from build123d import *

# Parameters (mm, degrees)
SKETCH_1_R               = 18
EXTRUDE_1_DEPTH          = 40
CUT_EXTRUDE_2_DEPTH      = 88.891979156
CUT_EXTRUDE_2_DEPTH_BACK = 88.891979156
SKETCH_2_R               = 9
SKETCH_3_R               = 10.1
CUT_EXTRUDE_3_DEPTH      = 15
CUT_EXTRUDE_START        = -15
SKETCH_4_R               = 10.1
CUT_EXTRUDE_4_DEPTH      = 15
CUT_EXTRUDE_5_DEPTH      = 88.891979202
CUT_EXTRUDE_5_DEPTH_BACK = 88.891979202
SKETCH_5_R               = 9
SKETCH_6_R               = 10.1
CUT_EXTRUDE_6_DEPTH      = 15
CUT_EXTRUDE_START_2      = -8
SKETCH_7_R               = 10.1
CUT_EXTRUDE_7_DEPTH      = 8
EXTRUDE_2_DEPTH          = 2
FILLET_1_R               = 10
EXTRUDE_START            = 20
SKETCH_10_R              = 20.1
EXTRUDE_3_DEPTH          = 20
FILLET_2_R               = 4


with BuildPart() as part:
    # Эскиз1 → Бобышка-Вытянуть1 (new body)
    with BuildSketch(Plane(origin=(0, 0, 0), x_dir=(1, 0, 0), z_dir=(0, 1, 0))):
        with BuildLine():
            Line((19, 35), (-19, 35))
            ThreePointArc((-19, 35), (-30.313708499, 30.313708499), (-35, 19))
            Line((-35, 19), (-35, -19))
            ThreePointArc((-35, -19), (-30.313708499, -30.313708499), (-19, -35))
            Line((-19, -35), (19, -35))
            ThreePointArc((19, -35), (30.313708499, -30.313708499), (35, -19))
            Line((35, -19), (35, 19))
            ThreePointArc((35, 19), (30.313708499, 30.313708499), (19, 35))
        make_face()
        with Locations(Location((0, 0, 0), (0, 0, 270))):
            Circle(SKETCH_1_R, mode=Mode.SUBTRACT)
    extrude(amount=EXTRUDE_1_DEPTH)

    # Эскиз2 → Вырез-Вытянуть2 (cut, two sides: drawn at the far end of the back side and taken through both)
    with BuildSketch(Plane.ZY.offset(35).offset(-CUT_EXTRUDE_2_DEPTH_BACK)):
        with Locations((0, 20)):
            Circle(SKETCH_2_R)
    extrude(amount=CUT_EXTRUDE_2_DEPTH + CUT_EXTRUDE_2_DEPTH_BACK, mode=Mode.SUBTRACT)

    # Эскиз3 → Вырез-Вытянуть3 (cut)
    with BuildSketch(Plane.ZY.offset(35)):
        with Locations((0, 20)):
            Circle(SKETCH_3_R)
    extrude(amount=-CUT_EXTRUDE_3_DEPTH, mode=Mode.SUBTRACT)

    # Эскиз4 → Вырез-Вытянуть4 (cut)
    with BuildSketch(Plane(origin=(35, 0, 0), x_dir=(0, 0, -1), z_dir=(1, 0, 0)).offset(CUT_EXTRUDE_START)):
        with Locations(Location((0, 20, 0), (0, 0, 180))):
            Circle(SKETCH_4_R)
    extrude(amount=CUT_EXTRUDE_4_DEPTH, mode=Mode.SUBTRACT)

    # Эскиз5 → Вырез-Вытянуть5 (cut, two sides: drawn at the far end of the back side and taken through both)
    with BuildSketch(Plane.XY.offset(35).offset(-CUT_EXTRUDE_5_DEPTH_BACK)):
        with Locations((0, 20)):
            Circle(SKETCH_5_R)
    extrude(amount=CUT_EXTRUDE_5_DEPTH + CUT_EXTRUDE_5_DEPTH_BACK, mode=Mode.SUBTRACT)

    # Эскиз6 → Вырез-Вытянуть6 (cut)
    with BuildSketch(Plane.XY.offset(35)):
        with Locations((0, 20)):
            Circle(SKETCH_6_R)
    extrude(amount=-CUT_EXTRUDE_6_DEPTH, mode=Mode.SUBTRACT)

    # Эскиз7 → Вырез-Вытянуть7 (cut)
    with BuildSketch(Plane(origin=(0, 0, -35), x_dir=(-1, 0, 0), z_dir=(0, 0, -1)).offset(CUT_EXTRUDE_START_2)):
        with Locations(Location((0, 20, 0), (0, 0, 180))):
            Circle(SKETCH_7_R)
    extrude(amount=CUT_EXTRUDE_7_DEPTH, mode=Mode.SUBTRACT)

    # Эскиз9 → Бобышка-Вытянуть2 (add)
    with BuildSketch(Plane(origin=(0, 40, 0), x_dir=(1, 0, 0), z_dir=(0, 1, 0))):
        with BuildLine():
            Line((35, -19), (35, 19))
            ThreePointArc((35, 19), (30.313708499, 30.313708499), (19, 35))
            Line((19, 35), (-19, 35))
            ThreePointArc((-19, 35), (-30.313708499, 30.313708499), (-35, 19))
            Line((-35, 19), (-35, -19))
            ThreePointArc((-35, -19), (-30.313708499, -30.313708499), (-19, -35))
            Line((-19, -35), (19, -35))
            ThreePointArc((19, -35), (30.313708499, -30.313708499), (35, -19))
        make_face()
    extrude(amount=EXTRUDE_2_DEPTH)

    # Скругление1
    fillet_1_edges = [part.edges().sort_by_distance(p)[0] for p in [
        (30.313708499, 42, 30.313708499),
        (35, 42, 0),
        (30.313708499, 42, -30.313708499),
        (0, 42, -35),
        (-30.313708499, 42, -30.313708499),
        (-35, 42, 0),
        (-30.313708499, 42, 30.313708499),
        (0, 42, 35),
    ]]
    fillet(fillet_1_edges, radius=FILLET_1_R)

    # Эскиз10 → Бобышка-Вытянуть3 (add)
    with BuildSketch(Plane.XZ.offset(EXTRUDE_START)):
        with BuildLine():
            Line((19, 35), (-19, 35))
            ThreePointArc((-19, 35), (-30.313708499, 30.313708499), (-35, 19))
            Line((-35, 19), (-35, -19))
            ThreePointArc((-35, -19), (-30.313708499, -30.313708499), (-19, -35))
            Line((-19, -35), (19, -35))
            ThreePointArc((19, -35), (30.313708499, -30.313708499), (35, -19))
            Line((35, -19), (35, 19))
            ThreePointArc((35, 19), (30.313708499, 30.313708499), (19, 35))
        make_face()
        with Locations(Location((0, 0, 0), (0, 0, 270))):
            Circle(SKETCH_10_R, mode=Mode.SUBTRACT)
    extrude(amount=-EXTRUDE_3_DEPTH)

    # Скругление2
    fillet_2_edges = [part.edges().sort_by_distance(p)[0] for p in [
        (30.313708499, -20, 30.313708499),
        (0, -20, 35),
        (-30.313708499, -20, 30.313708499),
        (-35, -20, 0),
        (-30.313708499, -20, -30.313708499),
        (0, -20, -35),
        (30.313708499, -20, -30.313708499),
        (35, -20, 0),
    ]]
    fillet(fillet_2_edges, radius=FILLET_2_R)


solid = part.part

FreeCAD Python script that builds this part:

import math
import FreeCAD as App
import Part
import Sketcher
from FreeCAD import Vector
Q = App.Units.Quantity


def edges_at(feature, points):
    """Names of the edges that pass closest to the given points."""
    edges = feature.Shape.Edges
    near = lambda p: min(range(len(edges)), key=lambda i: edges[i].distToShape(Part.Vertex(*p))[0])
    return sorted({f"Edge{near(p) + 1}" for p in points})

doc = App.newDocument("Part")
params = doc.addObject("Spreadsheet::Sheet", "Params")
for row, (alias, value) in enumerate([
    ("sketch1_diameter", "36 mm"),
    ("sketch1_radius", "16 mm"),
    ("sketch1_width", "38 mm"),
    ("pad1_length", "40 mm"),
    ("sketch2_diameter", "18 mm"),
    ("sketch3_diameter", "20.2 mm"),
    ("pocket2_length", "15 mm"),
    ("sketch4_diameter", "20.2 mm"),
    ("pocket3_length", "15 mm"),
    ("sketch5_diameter", "18 mm"),
    ("sketch6_diameter", "20.2 mm"),
    ("pocket5_length", "15 mm"),
    ("sketch7_diameter", "20.2 mm"),
    ("pocket6_length", "8 mm"),
    ("sketch8_radius", "16 mm"),
    ("sketch8_width", "38 mm"),
    ("pad2_length", "2 mm"),
    ("fillet_radius", "10 mm"),
    ("sketch9_radius", "16 mm"),
    ("sketch9_diameter", "40.2 mm"),
    ("sketch9_width", "38 mm"),
    ("pad3_length", "20 mm"),
    ("fillet2_radius", "4 mm"),
], start=1):
    params.set(f"A{row}", alias)
    params.set(f"B{row}", "=" + value)
    params.setAlias(f"B{row}", alias)

body = doc.addObject("PartDesign::Body", "Body")

sketch1 = doc.addObject("Sketcher::SketchObject", "Sketch")
body.addObject(sketch1)
sketch1.AttachmentSupport = (doc.XZ_Plane, [""])
sketch1.MapMode = "FlatFace"
sketch1.addGeometry([
    Part.LineSegment(Vector(19, -35, 0), Vector(-19, -35, 0)),
    Part.ArcOfCircle(Part.Circle(Vector(-19, -19, 0), Vector(0, 0, 1), 16), math.radians(180), math.radians(270)),
    Part.LineSegment(Vector(-35, -19, 0), Vector(-35, 19, 0)),
    Part.ArcOfCircle(Part.Circle(Vector(-19, 19, 0), Vector(0, 0, 1), 16), math.radians(90), math.radians(180)),
    Part.LineSegment(Vector(-19, 35, 0), Vector(19, 35, 0)),
    Part.ArcOfCircle(Part.Circle(Vector(19, 19, 0), Vector(0, 0, 1), 16), math.radians(0), math.radians(90)),
    Part.LineSegment(Vector(35, 19, 0), Vector(35, -19, 0)),
    Part.ArcOfCircle(Part.Circle(Vector(19, -19, 0), Vector(0, 0, 1), 16), math.radians(-90), math.radians(0)),
    Part.Circle(Vector(0, 0, 0), Vector(0, 0, 1), 18),
], False)
sketch1.addConstraint([
    Sketcher.Constraint("Tangent", 0, 2, 1, 2),
    Sketcher.Constraint("Tangent", 1, 1, 2, 1),
    Sketcher.Constraint("Tangent", 2, 2, 3, 2),
    Sketcher.Constraint("Tangent", 3, 1, 4, 1),
    Sketcher.Constraint("Tangent", 4, 2, 5, 2),
    Sketcher.Constraint("Tangent", 5, 1, 6, 1),
    Sketcher.Constraint("Tangent", 6, 2, 7, 2),
    Sketcher.Constraint("Tangent", 7, 1, 0, 1),
    Sketcher.Constraint("Horizontal", 0),
    Sketcher.Constraint("Vertical", 2),
    Sketcher.Constraint("Horizontal", 4),
    Sketcher.Constraint("Vertical", 6),
    Sketcher.Constraint("Coincident", 8, 3, -1, 1),
    Sketcher.Constraint("Equal", 1, 3),
    Sketcher.Constraint("Equal", 3, 5),
    Sketcher.Constraint("Equal", 5, 7),
    Sketcher.Constraint("Symmetric", 1, 3, 5, 3, -1, 1),
    Sketcher.Constraint("Equal", 4, 2),
    Sketcher.Constraint("Diameter", 8, Q("36 mm")),
    Sketcher.Constraint("Radius", 1, Q("16 mm")),
    Sketcher.Constraint("DistanceX", 0, 2, 0, 1, Q("38 mm")),
])
sketch1.setExpression("Constraints[18]", "Params.sketch1_diameter")
sketch1.setExpression("Constraints[19]", "Params.sketch1_radius")
sketch1.setExpression("Constraints[20]", "Params.sketch1_width")
pad1 = doc.addObject("PartDesign::Pad", "Pad")
body.addObject(pad1)
pad1.Profile = sketch1
pad1.setExpression("Length", "Params.pad1_length")
pad1.Reversed = True

sketch2 = doc.addObject("Sketcher::SketchObject", "Sketch001")
body.addObject(sketch2)
sketch2.AttachmentSupport = (doc.YZ_Plane, [""])
sketch2.MapMode = "FlatFace"
sketch2.AttachmentOffset = App.Placement(Vector(0, 0, -35), App.Rotation())
sketch2.addGeometry(Part.Circle(Vector(20, 0, 0), Vector(0, 0, 1), 9), False)
sketch2.addConstraint([
    Sketcher.Constraint("PointOnObject", 0, 3, -1),
    Sketcher.Constraint("Diameter", 0, Q("18 mm")),
    Sketcher.Constraint("DistanceX", -1, 1, 0, 3, Q("20 mm")),
])
sketch2.setExpression("Constraints[1]", "Params.sketch2_diameter")
pocket1 = doc.addObject("PartDesign::Pocket", "Pocket")
body.addObject(pocket1)
pocket1.Profile = sketch2
pocket1.Type = "ThroughAll"
pocket1.Midplane = True

sketch3 = doc.addObject("Sketcher::SketchObject", "Sketch002")
body.addObject(sketch3)
sketch3.AttachmentSupport = (doc.YZ_Plane, [""])
sketch3.MapMode = "FlatFace"
sketch3.AttachmentOffset = App.Placement(Vector(0, 0, -35), App.Rotation())
sketch3.addGeometry(Part.Circle(Vector(20, 0, 0), Vector(0, 0, 1), 10), False)
sketch3.addConstraint([
    Sketcher.Constraint("PointOnObject", 0, 3, -1),
    Sketcher.Constraint("Diameter", 0, Q("20.2 mm")),
    Sketcher.Constraint("DistanceX", -1, 1, 0, 3, Q("20 mm")),
])
sketch3.setExpression("Constraints[1]", "Params.sketch3_diameter")
pocket2 = doc.addObject("PartDesign::Pocket", "Pocket001")
body.addObject(pocket2)
pocket2.Profile = sketch3
pocket2.setExpression("Length", "Params.pocket2_length")
pocket2.Reversed = True

sketch4 = doc.addObject("Sketcher::SketchObject", "Sketch003")
body.addObject(sketch4)
sketch4.AttachmentSupport = (doc.YZ_Plane, [""])
sketch4.MapMode = "FlatFace"
sketch4.AttachmentOffset = App.Placement(Vector(0, 0, 20), App.Rotation())
sketch4.addGeometry(Part.Circle(Vector(20, 0, 0), Vector(0, 0, 1), 10), False)
sketch4.addConstraint([
    Sketcher.Constraint("PointOnObject", 0, 3, -1),
    Sketcher.Constraint("Diameter", 0, Q("20.2 mm")),
    Sketcher.Constraint("DistanceX", -1, 1, 0, 3, Q("20 mm")),
])
sketch4.setExpression("Constraints[1]", "Params.sketch4_diameter")
pocket3 = doc.addObject("PartDesign::Pocket", "Pocket002")
body.addObject(pocket3)
pocket3.Profile = sketch4
pocket3.setExpression("Length", "Params.pocket3_length")
pocket3.Reversed = True

sketch5 = doc.addObject("Sketcher::SketchObject", "Sketch004")
body.addObject(sketch5)
sketch5.AttachmentSupport = (doc.XY_Plane, [""])
sketch5.MapMode = "FlatFace"
sketch5.AttachmentOffset = App.Placement(Vector(0, 0, 35), App.Rotation())
sketch5.addGeometry(Part.Circle(Vector(0, 20, 0), Vector(0, 0, 1), 9), False)
sketch5.addConstraint([
    Sketcher.Constraint("PointOnObject", 0, 3, -2),
    Sketcher.Constraint("Diameter", 0, Q("18 mm")),
    Sketcher.Constraint("DistanceY", -1, 1, 0, 3, Q("20 mm")),
])
sketch5.setExpression("Constraints[1]", "Params.sketch5_diameter")
pocket4 = doc.addObject("PartDesign::Pocket", "Pocket003")
body.addObject(pocket4)
pocket4.Profile = sketch5
pocket4.Type = "ThroughAll"
pocket4.Midplane = True

sketch6 = doc.addObject("Sketcher::SketchObject", "Sketch005")
body.addObject(sketch6)
sketch6.AttachmentSupport = (doc.XY_Plane, [""])
sketch6.MapMode = "FlatFace"
sketch6.AttachmentOffset = App.Placement(Vector(0, 0, 35), App.Rotation())
sketch6.addGeometry(Part.Circle(Vector(0, 20, 0), Vector(0, 0, 1), 10), False)
sketch6.addConstraint([
    Sketcher.Constraint("PointOnObject", 0, 3, -2),
    Sketcher.Constraint("Diameter", 0, Q("20.2 mm")),
    Sketcher.Constraint("DistanceY", -1, 1, 0, 3, Q("20 mm")),
])
sketch6.setExpression("Constraints[1]", "Params.sketch6_diameter")
pocket5 = doc.addObject("PartDesign::Pocket", "Pocket004")
body.addObject(pocket5)
pocket5.Profile = sketch6
pocket5.setExpression("Length", "Params.pocket5_length")

sketch7 = doc.addObject("Sketcher::SketchObject", "Sketch006")
body.addObject(sketch7)
sketch7.AttachmentSupport = (doc.XY_Plane, [""])
sketch7.MapMode = "FlatFace"
sketch7.AttachmentOffset = App.Placement(Vector(0, 0, -27), App.Rotation())
sketch7.addGeometry(Part.Circle(Vector(0, 20, 0), Vector(0, 0, 1), 10), False)
sketch7.addConstraint([
    Sketcher.Constraint("PointOnObject", 0, 3, -2),
    Sketcher.Constraint("Diameter", 0, Q("20.2 mm")),
    Sketcher.Constraint("DistanceY", -1, 1, 0, 3, Q("20 mm")),
])
sketch7.setExpression("Constraints[1]", "Params.sketch7_diameter")
pocket6 = doc.addObject("PartDesign::Pocket", "Pocket005")
body.addObject(pocket6)
pocket6.Profile = sketch7
pocket6.setExpression("Length", "Params.pocket6_length")

sketch8 = doc.addObject("Sketcher::SketchObject", "Sketch007")
body.addObject(sketch8)
sketch8.AttachmentSupport = (doc.XZ_Plane, [""])
sketch8.MapMode = "FlatFace"
sketch8.AttachmentOffset = App.Placement(Vector(0, 0, -40), App.Rotation())
sketch8.addGeometry([
    Part.LineSegment(Vector(35, 19, 0), Vector(35, -19, 0)),
    Part.ArcOfCircle(Part.Circle(Vector(19, -19, 0), Vector(0, 0, 1), 16), math.radians(-90), math.radians(0)),
    Part.LineSegment(Vector(19, -35, 0), Vector(-19, -35, 0)),
    Part.ArcOfCircle(Part.Circle(Vector(-19, -19, 0), Vector(0, 0, 1), 16), math.radians(180), math.radians(270)),
    Part.LineSegment(Vector(-35, -19, 0), Vector(-35, 19, 0)),
    Part.ArcOfCircle(Part.Circle(Vector(-19, 19, 0), Vector(0, 0, 1), 16), math.radians(90), math.radians(180)),
    Part.LineSegment(Vector(-19, 35, 0), Vector(19, 35, 0)),
    Part.ArcOfCircle(Part.Circle(Vector(19, 19, 0), Vector(0, 0, 1), 16), math.radians(0), math.radians(90)),
], False)
sketch8.addConstraint([
    Sketcher.Constraint("Tangent", 0, 2, 1, 2),
    Sketcher.Constraint("Tangent", 1, 1, 2, 1),
    Sketcher.Constraint("Tangent", 2, 2, 3, 2),
    Sketcher.Constraint("Tangent", 3, 1, 4, 1),
    Sketcher.Constraint("Tangent", 4, 2, 5, 2),
    Sketcher.Constraint("Tangent", 5, 1, 6, 1),
    Sketcher.Constraint("Tangent", 6, 2, 7, 2),
    Sketcher.Constraint("Tangent", 7, 1, 0, 1),
    Sketcher.Constraint("Vertical", 0),
    Sketcher.Constraint("Horizontal", 2),
    Sketcher.Constraint("Vertical", 4),
    Sketcher.Constraint("Horizontal", 6),
    Sketcher.Constraint("Equal", 1, 3),
    Sketcher.Constraint("Equal", 3, 5),
    Sketcher.Constraint("Equal", 5, 7),
    Sketcher.Constraint("Symmetric", 1, 3, 5, 3, -1, 1),
    Sketcher.Constraint("Equal", 6, 0),
    Sketcher.Constraint("Radius", 1, Q("16 mm")),
    Sketcher.Constraint("DistanceX", 2, 2, 2, 1, Q("38 mm")),
])
sketch8.setExpression("Constraints[17]", "Params.sketch8_radius")
sketch8.setExpression("Constraints[18]", "Params.sketch8_width")
pad2 = doc.addObject("PartDesign::Pad", "Pad001")
body.addObject(pad2)
pad2.Profile = sketch8
pad2.setExpression("Length", "Params.pad2_length")
pad2.Reversed = True
doc.recompute()

fillet = doc.addObject("PartDesign::Fillet", "Fillet")
body.addObject(fillet)
fillet.Base = (pad2, edges_at(pad2, [
    (30.314, 42, 30.314),
    (35, 42, 0),
    (30.314, 42, -30.314),
    (0, 42, -35),
    (-30.314, 42, -30.314),
    (-35, 42, 0),
    (-30.314, 42, 30.314),
    (0, 42, 35),
]))
fillet.setExpression("Radius", "Params.fillet_radius")

sketch9 = doc.addObject("Sketcher::SketchObject", "Sketch008")
body.addObject(sketch9)
sketch9.AttachmentSupport = (doc.XZ_Plane, [""])
sketch9.MapMode = "FlatFace"
sketch9.AttachmentOffset = App.Placement(Vector(0, 0, 20), App.Rotation())
sketch9.addGeometry([
    Part.LineSegment(Vector(19, 35, 0), Vector(-19, 35, 0)),
    Part.ArcOfCircle(Part.Circle(Vector(-19, 19, 0), Vector(0, 0, 1), 16), math.radians(90), math.radians(180)),
    Part.LineSegment(Vector(-35, 19, 0), Vector(-35, -19, 0)),
    Part.ArcOfCircle(Part.Circle(Vector(-19, -19, 0), Vector(0, 0, 1), 16), math.radians(180), math.radians(270)),
    Part.LineSegment(Vector(-19, -35, 0), Vector(19, -35, 0)),
    Part.ArcOfCircle(Part.Circle(Vector(19, -19, 0), Vector(0, 0, 1), 16), math.radians(-90), math.radians(0)),
    Part.LineSegment(Vector(35, -19, 0), Vector(35, 19, 0)),
    Part.ArcOfCircle(Part.Circle(Vector(19, 19, 0), Vector(0, 0, 1), 16), math.radians(0), math.radians(90)),
    Part.Circle(Vector(0, 0, 0), Vector(0, 0, 1), 20),
], False)
sketch9.addConstraint([
    Sketcher.Constraint("Tangent", 0, 2, 1, 1),
    Sketcher.Constraint("Tangent", 1, 2, 2, 1),
    Sketcher.Constraint("Tangent", 2, 2, 3, 1),
    Sketcher.Constraint("Tangent", 3, 2, 4, 1),
    Sketcher.Constraint("Tangent", 4, 2, 5, 1),
    Sketcher.Constraint("Tangent", 5, 2, 6, 1),
    Sketcher.Constraint("Tangent", 6, 2, 7, 1),
    Sketcher.Constraint("Tangent", 7, 2, 0, 1),
    Sketcher.Constraint("Horizontal", 0),
    Sketcher.Constraint("Vertical", 2),
    Sketcher.Constraint("Horizontal", 4),
    Sketcher.Constraint("Vertical", 6),
    Sketcher.Constraint("Coincident", 8, 3, -1, 1),
    Sketcher.Constraint("Equal", 1, 3),
    Sketcher.Constraint("Equal", 3, 5),
    Sketcher.Constraint("Equal", 5, 7),
    Sketcher.Constraint("Symmetric", 1, 3, 5, 3, -1, 1),
    Sketcher.Constraint("Equal", 4, 2),
    Sketcher.Constraint("Radius", 1, Q("16 mm")),
    Sketcher.Constraint("Diameter", 8, Q("40.2 mm")),
    Sketcher.Constraint("DistanceX", 0, 2, 0, 1, Q("38 mm")),
])
sketch9.setExpression("Constraints[18]", "Params.sketch9_radius")
sketch9.setExpression("Constraints[19]", "Params.sketch9_diameter")
sketch9.setExpression("Constraints[20]", "Params.sketch9_width")
pad3 = doc.addObject("PartDesign::Pad", "Pad002")
body.addObject(pad3)
pad3.Profile = sketch9
pad3.setExpression("Length", "Params.pad3_length")
pad3.Reversed = True
doc.recompute()

fillet2 = doc.addObject("PartDesign::Fillet", "Fillet001")
body.addObject(fillet2)
fillet2.Base = (pad3, edges_at(pad3, [
    (30.314, -20, 30.314),
    (0, -20, 35),
    (-30.314, -20, 30.314),
    (-35, -20, 0),
    (-30.314, -20, -30.314),
    (0, -20, -35),
    (30.314, -20, -30.314),
    (35, -20, 0),
]))
fillet2.setExpression("Radius", "Params.fillet2_radius")

doc.recompute()
